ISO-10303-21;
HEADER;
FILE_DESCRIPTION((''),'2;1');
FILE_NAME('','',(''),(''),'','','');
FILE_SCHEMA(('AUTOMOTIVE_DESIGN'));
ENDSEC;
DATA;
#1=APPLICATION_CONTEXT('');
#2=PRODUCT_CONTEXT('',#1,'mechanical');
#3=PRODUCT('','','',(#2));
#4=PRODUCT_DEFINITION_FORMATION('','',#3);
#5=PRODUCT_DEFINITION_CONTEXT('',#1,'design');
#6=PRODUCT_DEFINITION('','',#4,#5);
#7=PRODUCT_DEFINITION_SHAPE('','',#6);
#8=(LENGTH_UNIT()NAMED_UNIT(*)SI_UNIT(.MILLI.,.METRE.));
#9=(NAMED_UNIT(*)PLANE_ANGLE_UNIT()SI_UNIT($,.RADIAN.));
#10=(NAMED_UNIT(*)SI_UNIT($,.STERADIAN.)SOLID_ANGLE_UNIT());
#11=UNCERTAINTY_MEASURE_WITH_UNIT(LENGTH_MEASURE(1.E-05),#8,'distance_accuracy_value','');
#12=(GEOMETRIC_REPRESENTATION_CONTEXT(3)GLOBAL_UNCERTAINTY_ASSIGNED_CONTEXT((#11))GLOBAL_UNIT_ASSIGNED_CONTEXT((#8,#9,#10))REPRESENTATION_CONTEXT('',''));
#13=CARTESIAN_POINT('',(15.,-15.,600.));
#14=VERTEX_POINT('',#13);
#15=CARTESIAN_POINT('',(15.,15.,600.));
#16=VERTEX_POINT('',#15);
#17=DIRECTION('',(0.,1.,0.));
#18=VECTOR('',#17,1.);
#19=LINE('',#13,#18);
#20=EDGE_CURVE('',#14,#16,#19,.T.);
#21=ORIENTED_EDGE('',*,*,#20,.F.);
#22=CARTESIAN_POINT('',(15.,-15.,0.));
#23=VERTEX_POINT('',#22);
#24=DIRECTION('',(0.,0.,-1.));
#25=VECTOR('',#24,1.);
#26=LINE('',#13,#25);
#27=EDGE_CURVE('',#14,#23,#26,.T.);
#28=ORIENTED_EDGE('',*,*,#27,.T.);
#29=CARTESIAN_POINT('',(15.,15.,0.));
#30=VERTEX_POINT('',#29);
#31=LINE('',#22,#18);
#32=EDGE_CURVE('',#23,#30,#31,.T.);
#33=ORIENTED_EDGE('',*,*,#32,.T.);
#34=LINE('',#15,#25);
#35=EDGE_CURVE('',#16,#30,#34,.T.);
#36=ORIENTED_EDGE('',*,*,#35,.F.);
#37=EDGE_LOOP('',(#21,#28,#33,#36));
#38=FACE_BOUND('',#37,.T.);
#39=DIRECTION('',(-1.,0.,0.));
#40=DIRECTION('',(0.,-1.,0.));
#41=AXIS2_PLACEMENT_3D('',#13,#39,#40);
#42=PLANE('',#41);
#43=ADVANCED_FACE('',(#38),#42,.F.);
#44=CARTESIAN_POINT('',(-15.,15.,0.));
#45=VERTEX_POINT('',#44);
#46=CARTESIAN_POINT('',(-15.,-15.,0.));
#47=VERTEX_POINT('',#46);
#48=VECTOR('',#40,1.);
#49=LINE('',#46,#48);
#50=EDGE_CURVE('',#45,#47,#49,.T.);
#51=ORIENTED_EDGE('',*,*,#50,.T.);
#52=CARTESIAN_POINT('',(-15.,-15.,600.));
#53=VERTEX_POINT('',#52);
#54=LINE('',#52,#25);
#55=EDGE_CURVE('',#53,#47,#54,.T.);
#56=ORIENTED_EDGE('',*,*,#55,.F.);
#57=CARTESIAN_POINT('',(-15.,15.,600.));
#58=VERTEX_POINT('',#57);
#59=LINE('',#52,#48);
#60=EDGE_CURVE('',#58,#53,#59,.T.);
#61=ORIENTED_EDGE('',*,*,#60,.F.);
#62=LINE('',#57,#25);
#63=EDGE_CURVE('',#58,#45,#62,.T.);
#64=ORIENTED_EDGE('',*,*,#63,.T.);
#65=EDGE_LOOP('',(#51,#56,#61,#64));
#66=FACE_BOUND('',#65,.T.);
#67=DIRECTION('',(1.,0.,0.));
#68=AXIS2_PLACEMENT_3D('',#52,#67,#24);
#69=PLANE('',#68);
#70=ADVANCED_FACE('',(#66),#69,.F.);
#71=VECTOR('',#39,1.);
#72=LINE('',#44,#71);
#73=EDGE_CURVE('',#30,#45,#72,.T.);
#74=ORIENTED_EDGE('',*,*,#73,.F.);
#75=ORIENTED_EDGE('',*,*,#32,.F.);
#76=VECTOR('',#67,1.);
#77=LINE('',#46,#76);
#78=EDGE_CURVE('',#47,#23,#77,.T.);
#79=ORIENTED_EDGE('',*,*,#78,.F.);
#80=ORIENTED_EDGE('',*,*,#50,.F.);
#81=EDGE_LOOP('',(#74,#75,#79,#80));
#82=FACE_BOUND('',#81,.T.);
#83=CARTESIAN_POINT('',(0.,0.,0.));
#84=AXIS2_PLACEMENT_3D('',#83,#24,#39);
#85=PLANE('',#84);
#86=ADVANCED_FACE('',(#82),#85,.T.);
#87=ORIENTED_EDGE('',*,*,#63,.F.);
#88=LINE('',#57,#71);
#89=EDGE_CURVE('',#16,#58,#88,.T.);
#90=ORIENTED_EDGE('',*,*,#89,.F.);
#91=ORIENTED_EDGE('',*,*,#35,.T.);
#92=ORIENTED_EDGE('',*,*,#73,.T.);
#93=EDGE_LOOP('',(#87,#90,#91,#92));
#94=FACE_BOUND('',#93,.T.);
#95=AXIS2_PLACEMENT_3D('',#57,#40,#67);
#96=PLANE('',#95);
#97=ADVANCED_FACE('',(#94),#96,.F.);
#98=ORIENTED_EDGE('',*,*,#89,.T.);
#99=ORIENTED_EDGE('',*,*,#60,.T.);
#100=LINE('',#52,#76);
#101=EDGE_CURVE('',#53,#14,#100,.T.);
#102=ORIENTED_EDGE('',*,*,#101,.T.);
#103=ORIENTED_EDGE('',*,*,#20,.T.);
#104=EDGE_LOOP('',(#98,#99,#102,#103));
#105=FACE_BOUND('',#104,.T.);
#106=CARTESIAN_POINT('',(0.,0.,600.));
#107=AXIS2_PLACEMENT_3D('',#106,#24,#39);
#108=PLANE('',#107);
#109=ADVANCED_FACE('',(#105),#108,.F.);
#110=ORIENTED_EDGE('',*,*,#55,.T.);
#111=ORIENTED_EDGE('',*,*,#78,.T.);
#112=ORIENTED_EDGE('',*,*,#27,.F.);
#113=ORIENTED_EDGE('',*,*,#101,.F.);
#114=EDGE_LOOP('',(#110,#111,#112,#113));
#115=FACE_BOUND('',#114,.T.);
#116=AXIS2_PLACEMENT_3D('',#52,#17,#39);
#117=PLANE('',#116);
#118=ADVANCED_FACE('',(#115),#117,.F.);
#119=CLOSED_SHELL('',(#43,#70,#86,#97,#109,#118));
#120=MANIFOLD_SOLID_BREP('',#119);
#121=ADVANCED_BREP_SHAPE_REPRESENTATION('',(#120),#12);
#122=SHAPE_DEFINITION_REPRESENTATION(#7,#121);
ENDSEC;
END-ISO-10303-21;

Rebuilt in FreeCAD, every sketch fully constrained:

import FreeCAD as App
import Part
import Sketcher

doc = App.newDocument("Part")
body = doc.addObject("PartDesign::Body", "Body")

# Sketch on XY plane
sketch1 = body.newObject("Sketcher::SketchObject", "Sketch")
sketch1.AttachmentSupport = (doc.getObject("XY_Plane"), [""])
sketch1.MapMode = "FlatFace"
sketch1.addGeometry([
    Part.LineSegment(App.Vector(-15, 15, 0), App.Vector(-15, -15, 0)),
    Part.LineSegment(App.Vector(-15, -15, 0), App.Vector(15, -15, 0)),
    Part.LineSegment(App.Vector(15, -15, 0), App.Vector(15, 15, 0)),
    Part.LineSegment(App.Vector(15, 15, 0), App.Vector(-15, 15, 0)),
], False)
sketch1.addConstraint([
    Sketcher.Constraint("Coincident", 0, 2, 1, 1),
    Sketcher.Constraint("Coincident", 1, 2, 2, 1),
    Sketcher.Constraint("Coincident", 2, 2, 3, 1),
    Sketcher.Constraint("Coincident", 3, 2, 0, 1),
    Sketcher.Constraint("Vertical", 0),
    Sketcher.Constraint("Horizontal", 1),
    Sketcher.Constraint("Vertical", 2),
    Sketcher.Constraint("Horizontal", 3),
    Sketcher.Constraint("Symmetric", 0, 2, 2, 2, -1, 1),
    Sketcher.Constraint("Equal", 3, 0),
    Sketcher.Constraint("DistanceX", 1, 1, 1, 2, 30.0),
])
pad1 = body.newObject("PartDesign::Pad", "Pad")
pad1.Profile = sketch1
pad1.Length = 600

doc.recompute()
